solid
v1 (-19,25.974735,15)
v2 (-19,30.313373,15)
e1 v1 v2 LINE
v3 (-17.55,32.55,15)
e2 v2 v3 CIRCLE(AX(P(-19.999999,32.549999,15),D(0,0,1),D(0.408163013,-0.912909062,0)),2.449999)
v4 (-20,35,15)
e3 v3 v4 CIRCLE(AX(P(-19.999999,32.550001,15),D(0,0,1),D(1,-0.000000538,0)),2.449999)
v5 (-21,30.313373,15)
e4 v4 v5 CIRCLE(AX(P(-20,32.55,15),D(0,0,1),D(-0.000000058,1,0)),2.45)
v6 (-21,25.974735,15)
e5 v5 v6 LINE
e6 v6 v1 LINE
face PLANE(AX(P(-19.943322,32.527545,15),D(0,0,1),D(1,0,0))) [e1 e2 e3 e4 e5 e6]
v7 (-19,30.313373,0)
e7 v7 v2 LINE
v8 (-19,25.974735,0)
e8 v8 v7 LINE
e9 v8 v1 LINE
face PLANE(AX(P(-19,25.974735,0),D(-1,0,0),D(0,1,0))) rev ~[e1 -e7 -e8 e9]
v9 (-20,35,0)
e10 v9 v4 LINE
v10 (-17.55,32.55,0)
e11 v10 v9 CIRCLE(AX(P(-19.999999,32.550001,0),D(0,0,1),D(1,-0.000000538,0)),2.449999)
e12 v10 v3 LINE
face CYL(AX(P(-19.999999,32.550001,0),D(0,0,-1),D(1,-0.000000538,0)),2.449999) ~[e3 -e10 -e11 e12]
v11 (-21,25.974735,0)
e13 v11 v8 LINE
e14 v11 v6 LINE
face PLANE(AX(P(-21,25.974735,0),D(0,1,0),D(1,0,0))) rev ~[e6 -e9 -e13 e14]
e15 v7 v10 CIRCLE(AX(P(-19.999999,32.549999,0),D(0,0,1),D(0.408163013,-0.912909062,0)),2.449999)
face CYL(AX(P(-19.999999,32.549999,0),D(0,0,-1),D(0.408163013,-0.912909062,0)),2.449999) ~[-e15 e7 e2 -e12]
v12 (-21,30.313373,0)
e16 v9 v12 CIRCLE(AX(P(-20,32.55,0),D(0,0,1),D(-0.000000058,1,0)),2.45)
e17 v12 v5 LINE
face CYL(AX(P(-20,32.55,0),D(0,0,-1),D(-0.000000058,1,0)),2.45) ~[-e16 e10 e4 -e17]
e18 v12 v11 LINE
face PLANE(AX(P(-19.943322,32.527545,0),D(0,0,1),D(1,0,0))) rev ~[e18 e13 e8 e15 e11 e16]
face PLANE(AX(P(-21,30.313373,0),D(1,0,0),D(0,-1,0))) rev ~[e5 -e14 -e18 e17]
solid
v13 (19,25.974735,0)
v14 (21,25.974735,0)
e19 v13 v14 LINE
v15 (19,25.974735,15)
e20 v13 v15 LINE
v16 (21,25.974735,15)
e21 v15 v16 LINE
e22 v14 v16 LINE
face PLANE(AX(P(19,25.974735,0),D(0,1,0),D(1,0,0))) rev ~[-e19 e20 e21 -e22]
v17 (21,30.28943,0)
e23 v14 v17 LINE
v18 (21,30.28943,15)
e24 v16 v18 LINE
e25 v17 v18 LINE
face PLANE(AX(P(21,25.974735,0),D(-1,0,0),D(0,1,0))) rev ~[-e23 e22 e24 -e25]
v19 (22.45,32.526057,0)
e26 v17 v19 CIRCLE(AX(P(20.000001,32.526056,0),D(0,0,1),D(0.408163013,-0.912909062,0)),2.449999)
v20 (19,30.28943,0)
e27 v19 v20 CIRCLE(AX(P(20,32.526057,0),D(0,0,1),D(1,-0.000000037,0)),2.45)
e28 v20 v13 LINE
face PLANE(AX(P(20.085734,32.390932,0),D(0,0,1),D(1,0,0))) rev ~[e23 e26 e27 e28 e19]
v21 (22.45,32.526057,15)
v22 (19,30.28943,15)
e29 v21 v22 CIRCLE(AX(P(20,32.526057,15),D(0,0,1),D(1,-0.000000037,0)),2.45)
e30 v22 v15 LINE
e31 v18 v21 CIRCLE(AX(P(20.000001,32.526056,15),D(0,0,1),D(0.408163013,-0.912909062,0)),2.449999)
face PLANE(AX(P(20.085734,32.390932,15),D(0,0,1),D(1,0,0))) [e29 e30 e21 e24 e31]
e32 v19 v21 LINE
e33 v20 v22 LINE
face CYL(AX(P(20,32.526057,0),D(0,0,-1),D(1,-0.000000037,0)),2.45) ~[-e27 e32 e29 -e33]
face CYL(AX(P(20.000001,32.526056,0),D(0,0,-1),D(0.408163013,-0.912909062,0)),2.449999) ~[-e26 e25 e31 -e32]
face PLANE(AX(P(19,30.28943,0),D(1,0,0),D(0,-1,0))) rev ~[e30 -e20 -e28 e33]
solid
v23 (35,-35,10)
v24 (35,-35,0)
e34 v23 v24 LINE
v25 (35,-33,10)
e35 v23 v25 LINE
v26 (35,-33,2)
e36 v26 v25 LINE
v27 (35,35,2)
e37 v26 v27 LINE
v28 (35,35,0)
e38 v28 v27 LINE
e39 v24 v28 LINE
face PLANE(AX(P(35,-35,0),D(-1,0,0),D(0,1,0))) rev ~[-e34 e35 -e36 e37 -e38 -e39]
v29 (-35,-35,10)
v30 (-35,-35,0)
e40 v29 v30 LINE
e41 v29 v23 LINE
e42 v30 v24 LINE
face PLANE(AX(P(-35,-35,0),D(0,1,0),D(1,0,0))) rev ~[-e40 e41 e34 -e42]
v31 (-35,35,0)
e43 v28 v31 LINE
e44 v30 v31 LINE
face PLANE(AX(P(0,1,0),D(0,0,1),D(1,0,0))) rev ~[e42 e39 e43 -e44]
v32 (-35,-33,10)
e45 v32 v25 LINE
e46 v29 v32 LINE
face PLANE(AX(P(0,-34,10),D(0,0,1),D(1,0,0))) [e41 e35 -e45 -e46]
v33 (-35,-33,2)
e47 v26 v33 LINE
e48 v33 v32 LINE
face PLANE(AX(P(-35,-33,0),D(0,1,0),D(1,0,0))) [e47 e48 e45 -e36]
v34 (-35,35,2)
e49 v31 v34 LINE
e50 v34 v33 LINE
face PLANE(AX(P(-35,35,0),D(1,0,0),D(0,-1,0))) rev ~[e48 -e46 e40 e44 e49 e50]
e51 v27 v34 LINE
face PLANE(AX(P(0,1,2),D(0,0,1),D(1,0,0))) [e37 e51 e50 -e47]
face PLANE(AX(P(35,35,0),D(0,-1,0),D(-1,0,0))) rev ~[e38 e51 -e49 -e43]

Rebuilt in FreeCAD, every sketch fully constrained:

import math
import FreeCAD as App
import Part
import Sketcher

V = App.Vector
Q = App.Units.Quantity


def add_polygon(sketch, points):
    """Adds a closed chain of lines whose ends are joined by coincident constraints."""
    first, n = sketch.GeometryCount, len(points)
    for a, b in zip(points, points[1:] + points[:1]):
        sketch.addGeometry(Part.LineSegment(App.Vector(*a, 0), App.Vector(*b, 0)), False)
    for i in range(n):
        sketch.addConstraint(Sketcher.Constraint("Coincident", first + i, 2, first + (i + 1) % n, 1))

doc = App.newDocument("Part")
params = doc.addObject("Spreadsheet::Sheet", "Params")
for row, (alias, value) in enumerate([
    ("sketch1_width", "2 mm"),
    ("sketch1_radius", "2.449999 mm"),
    ("pad1_length", "15 mm"),
    ("sketch2_width", "70 mm"),
    ("pad2_length", "2 mm"),
    ("sketch3_width", "70 mm"),
    ("sketch3_height", "2 mm"),
    ("pad3_length", "10 mm"),
], start=1):
    params.set(f"A{row}", alias)
    params.set(f"B{row}", "=" + value)
    params.setAlias(f"B{row}", alias)

body = doc.addObject("PartDesign::Body", "Body")
body.AllowCompound = True

sketch1 = body.newObject("Sketcher::SketchObject", "Sketch")
sketch1.AttachmentSupport = (doc.getObject("XY_Plane"), [""])
sketch1.MapMode = "FlatFace"
sketch1.addGeometry([
    Part.ArcOfCircle(Part.Circle(V(-20, 32.6, 0), V(0, 0, 1), 2.4), math.radians(0), math.radians(90)),
    Part.ArcOfCircle(Part.Circle(V(-20, 32.5, 0), V(0, 0, 1), 2.5), math.radians(90), math.radians(246)),
    Part.LineSegment(V(-21, 30.3, 0), V(-21, 26, 0)),
    Part.LineSegment(V(-21, 26, 0), V(-19, 26, 0)),
    Part.LineSegment(V(-19, 26, 0), V(-19, 30.3, 0)),
    Part.ArcOfCircle(Part.Circle(V(-20, 32.5, 0), V(0, 0, 1), 2.4), math.radians(-66), math.radians(0)),
    Part.ArcOfCircle(Part.Circle(V(20, 32.5, 0), V(0, 0, 1), 2.4), math.radians(-66), math.radians(0)),
    Part.ArcOfCircle(Part.Circle(V(20, 32.5, 0), V(0, 0, 1), 2.5), math.radians(0), math.radians(246)),
    Part.LineSegment(V(19, 30.3, 0), V(19, 26, 0)),
    Part.LineSegment(V(19, 26, 0), V(21, 26, 0)),
    Part.LineSegment(V(21, 26, 0), V(21, 30.3, 0)),
], False)
sketch1.addConstraint([
    Sketcher.Constraint("Tangent", 0, 2, 1, 1),
    Sketcher.Constraint("Coincident", 1, 2, 2, 1),
    Sketcher.Constraint("Coincident", 2, 2, 3, 1),
    Sketcher.Constraint("Coincident", 3, 2, 4, 1),
    Sketcher.Constraint("Coincident", 4, 2, 5, 1),
    Sketcher.Constraint("Tangent", 5, 2, 0, 1),
    Sketcher.Constraint("Tangent", 6, 2, 7, 1),
    Sketcher.Constraint("Coincident", 7, 2, 8, 1),
    Sketcher.Constraint("Coincident", 8, 2, 9, 1),
    Sketcher.Constraint("Coincident", 9, 2, 10, 1),
    Sketcher.Constraint("Coincident", 10, 2, 6, 1),
    Sketcher.Constraint("Vertical", 2),
    Sketcher.Constraint("Horizontal", 3),
    Sketcher.Constraint("Vertical", 4),
    Sketcher.Constraint("Vertical", 8),
    Sketcher.Constraint("Horizontal", 9),
    Sketcher.Constraint("Vertical", 10),
    Sketcher.Constraint("Equal", 0, 1),
    Sketcher.Constraint("Equal", 1, 5),
    Sketcher.Constraint("Equal", 5, 6),
    Sketcher.Constraint("Equal", 6, 7),
    Sketcher.Constraint("Symmetric", 3, 2, 8, 2, -2),
    Sketcher.Constraint("Horizontal", 1, 2, 4, 2),
    Sketcher.Constraint("Horizontal", 1, 3, 5, 2),
    Sketcher.Constraint("Horizontal", 7, 3, 6, 2),
    Sketcher.Constraint("Horizontal", 7, 2, 10, 2),
    Sketcher.Constraint("Vertical", 5, 3, 0, 2),
    Sketcher.Constraint("Equal", 3, 9),
    Sketcher.Constraint("DistanceX", 3, 1, 3, 2, Q("2 mm")),
    Sketcher.Constraint("Radius", 0, Q("2.449999 mm")),
    Sketcher.Constraint("DistanceX", 0, 3, -1, 1, Q("19.999999 mm")),
    Sketcher.Constraint("DistanceY", -1, 1, 0, 2, Q("35 mm")),
    Sketcher.Constraint("DistanceY", 2, 2, 2, 1, Q("4.338638 mm")),
    Sketcher.Constraint("DistanceY", 8, 2, 8, 1, Q("4.314695 mm")),
])
sketch1.setExpression("Constraints[28]", "Params.sketch1_width")
sketch1.setExpression("Constraints[29]", "Params.sketch1_radius")
pad1 = body.newObject("PartDesign::Pad", "Pad")
pad1.Profile = sketch1
pad1.setExpression("Length", "Params.pad1_length")
body2 = doc.addObject("PartDesign::Body", "Body001")

sketch2 = body2.newObject("Sketcher::SketchObject", "Sketch001")
sketch2.AttachmentSupport = (doc.getObject("XY_Plane001"), [""])
sketch2.MapMode = "FlatFace"
add_polygon(sketch2, [(35, 35), (-35, 35), (-35, -35), (35, -35)])
sketch2.addConstraint([
    Sketcher.Constraint("Horizontal", 0),
    Sketcher.Constraint("Vertical", 1),
    Sketcher.Constraint("Horizontal", 2),
    Sketcher.Constraint("Vertical", 3),
    Sketcher.Constraint("Symmetric", 0, 2, 2, 2, -1, 1),
    Sketcher.Constraint("Equal", 2, 1),
    Sketcher.Constraint("DistanceX", 0, 2, 0, 1, Q("70 mm")),
])
sketch2.setExpression("Constraints[10]", "Params.sketch2_width")
pad2 = body2.newObject("PartDesign::Pad", "Pad001")
pad2.Profile = sketch2
pad2.setExpression("Length", "Params.pad2_length")

sketch3 = body2.newObject("Sketcher::SketchObject", "Sketch002")
sketch3.AttachmentSupport = (doc.getObject("XY_Plane001"), [""])
sketch3.MapMode = "FlatFace"
add_polygon(sketch3, [(-35, -33), (-35, -35), (35, -35), (35, -33)])
sketch3.addConstraint([
    Sketcher.Constraint("Vertical", 0),
    Sketcher.Constraint("Horizontal", 1),
    Sketcher.Constraint("Vertical", 2),
    Sketcher.Constraint("Horizontal", 3),
    Sketcher.Constraint("DistanceX", 1, 1, 1, 2, Q("70 mm")),
    Sketcher.Constraint("DistanceY", 0, 2, 0, 1, Q("2 mm")),
    Sketcher.Constraint("DistanceX", 0, 2, -1, 1, Q("35 mm")),
    Sketcher.Constraint("DistanceY", 0, 2, -1, 1, Q("35 mm")),
])
sketch3.setExpression("Constraints[8]", "Params.sketch3_width")
sketch3.setExpression("Constraints[9]", "Params.sketch3_height")
pad3 = body2.newObject("PartDesign::Pad", "Pad002")
pad3.Profile = sketch3
pad3.setExpression("Length", "Params.pad3_length")

doc.recompute()
